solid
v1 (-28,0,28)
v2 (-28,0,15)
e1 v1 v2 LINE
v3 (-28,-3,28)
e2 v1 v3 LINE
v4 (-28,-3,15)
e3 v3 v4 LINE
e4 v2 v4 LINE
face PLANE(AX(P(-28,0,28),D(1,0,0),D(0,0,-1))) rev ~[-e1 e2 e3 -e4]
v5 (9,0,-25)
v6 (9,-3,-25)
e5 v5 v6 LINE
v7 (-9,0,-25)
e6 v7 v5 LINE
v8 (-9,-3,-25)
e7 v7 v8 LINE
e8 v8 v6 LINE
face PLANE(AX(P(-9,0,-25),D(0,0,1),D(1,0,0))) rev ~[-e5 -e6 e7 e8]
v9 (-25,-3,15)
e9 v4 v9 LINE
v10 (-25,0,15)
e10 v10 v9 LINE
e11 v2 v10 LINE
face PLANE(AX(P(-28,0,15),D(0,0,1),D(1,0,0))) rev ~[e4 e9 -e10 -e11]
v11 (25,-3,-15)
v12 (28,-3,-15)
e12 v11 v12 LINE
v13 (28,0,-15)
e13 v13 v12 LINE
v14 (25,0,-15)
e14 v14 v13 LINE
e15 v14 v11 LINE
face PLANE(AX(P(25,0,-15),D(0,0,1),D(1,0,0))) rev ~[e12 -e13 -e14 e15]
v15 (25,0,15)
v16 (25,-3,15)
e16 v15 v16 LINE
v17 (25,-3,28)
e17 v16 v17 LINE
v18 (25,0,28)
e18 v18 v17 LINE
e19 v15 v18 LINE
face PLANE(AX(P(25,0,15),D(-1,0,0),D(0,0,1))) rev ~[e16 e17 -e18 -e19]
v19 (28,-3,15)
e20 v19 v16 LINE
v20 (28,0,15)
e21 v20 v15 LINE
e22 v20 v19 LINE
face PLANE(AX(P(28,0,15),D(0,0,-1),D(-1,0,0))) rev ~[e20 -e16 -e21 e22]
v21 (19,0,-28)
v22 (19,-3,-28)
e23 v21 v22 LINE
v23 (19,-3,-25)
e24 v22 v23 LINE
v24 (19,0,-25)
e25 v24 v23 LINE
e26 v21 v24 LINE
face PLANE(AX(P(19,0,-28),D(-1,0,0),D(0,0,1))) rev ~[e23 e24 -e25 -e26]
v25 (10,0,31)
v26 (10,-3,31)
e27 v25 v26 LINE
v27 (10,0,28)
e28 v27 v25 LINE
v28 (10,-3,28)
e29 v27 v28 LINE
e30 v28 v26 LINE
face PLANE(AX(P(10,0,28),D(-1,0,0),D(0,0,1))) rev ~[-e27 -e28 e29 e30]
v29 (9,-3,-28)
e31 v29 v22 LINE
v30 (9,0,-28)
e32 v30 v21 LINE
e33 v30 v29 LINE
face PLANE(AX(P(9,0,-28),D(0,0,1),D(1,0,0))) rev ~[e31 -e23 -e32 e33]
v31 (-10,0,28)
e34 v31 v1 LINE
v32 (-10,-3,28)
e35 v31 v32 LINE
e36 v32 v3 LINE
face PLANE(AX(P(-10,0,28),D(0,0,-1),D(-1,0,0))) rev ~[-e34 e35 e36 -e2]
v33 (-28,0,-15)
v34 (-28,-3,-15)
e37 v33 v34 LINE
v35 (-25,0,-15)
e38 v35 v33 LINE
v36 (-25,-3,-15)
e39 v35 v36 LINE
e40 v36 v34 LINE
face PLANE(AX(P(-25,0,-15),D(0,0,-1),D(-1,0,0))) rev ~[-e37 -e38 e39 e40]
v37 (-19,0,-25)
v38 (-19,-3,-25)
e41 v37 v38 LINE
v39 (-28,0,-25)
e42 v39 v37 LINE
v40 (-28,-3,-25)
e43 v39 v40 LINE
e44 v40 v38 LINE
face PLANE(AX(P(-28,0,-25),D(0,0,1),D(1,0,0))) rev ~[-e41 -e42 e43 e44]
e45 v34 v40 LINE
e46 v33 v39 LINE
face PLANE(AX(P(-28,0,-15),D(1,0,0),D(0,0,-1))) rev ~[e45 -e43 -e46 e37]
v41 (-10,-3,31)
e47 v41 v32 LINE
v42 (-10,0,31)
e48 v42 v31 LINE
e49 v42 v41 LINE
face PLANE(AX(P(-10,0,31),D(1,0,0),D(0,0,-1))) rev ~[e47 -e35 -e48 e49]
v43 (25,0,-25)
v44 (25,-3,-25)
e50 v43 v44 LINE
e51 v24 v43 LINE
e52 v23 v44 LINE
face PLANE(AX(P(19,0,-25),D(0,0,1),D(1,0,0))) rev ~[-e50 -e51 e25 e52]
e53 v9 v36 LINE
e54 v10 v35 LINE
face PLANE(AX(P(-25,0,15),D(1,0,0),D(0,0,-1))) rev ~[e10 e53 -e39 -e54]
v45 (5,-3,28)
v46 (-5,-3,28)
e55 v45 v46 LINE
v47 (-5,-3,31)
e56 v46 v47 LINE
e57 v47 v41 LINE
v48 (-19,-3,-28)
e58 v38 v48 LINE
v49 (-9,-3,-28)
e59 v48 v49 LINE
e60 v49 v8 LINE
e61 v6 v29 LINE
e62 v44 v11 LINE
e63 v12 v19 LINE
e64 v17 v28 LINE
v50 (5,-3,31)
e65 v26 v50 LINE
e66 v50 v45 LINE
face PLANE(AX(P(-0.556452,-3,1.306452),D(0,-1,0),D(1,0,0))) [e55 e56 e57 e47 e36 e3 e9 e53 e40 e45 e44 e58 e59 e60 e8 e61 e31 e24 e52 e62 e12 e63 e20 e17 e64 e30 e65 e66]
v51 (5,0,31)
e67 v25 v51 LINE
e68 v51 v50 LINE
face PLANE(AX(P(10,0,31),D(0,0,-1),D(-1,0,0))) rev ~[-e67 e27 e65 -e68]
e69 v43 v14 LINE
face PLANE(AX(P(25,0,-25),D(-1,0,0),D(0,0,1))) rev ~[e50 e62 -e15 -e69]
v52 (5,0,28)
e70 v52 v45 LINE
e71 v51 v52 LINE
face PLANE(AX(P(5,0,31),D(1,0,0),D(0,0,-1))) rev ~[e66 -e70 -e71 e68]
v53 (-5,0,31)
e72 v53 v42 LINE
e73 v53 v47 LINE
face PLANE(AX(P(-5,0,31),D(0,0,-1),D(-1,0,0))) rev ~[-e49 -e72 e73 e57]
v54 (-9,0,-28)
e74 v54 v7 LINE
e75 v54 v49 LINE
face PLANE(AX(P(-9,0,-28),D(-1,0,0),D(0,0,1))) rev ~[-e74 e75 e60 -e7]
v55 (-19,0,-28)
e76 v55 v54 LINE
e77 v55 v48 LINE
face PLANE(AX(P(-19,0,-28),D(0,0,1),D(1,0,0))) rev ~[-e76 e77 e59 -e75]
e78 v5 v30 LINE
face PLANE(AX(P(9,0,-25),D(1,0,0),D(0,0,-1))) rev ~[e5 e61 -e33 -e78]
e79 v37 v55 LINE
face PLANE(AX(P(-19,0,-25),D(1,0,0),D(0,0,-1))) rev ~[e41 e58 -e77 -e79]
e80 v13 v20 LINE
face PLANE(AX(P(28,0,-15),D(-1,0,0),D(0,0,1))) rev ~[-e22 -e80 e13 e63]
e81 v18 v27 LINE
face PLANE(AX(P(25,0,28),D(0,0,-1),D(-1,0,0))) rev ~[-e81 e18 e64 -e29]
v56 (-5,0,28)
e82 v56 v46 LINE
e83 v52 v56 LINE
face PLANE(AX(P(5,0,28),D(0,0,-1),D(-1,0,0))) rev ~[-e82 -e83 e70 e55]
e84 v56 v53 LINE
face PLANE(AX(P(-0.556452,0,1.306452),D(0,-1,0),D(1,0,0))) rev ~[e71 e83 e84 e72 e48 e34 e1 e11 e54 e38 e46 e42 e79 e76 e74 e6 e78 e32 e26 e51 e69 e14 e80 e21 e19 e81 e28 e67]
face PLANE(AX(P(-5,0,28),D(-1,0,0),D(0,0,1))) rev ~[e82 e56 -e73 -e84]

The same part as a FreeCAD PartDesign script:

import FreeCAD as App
import Part
import Sketcher
Q = App.Units.Quantity

doc = App.newDocument("Part")
params = doc.addObject("Spreadsheet::Sheet", "Params")
for row, (alias, value) in enumerate([
    ("sketch1_width", "18 mm"),
    ("sketch1_width2", "3 mm"),
    ("sketch1_width3", "9 mm"),
    ("sketch1_width4", "10 mm"),
    ("sketch1_height", "13 mm"),
    ("pad1_length", "3 mm"),
], start=1):
    params.set(f"A{row}", alias)
    params.set(f"B{row}", "=" + value)
    params.setAlias(f"B{row}", alias)

body = doc.addObject("PartDesign::Body", "Body")

sketch1 = body.newObject("Sketcher::SketchObject", "Sketch")
sketch1.AttachmentSupport = (doc.getObject("XZ_Plane"), [""])
sketch1.MapMode = "FlatFace"
sketch1.addGeometry(Part.LineSegment(App.Vector(-10, 28, 0), App.Vector(-28, 28, 0)), False)
sketch1.addGeometry(Part.LineSegment(App.Vector(-28, 28, 0), App.Vector(-28, 15, 0)), False)
sketch1.addGeometry(Part.LineSegment(App.Vector(-28, 15, 0), App.Vector(-25, 15, 0)), False)
sketch1.addGeometry(Part.LineSegment(App.Vector(-25, 15, 0), App.Vector(-25, -15, 0)), False)
sketch1.addGeometry(Part.LineSegment(App.Vector(-25, -15, 0), App.Vector(-28, -15, 0)), False)
sketch1.addGeometry(Part.LineSegment(App.Vector(-28, -15, 0), App.Vector(-28, -25, 0)), False)
sketch1.addGeometry(Part.LineSegment(App.Vector(-28, -25, 0), App.Vector(-19, -25, 0)), False)
sketch1.addGeometry(Part.LineSegment(App.Vector(-19, -25, 0), App.Vector(-19, -28, 0)), False)
sketch1.addGeometry(Part.LineSegment(App.Vector(-19, -28, 0), App.Vector(-9, -28, 0)), False)
sketch1.addGeometry(Part.LineSegment(App.Vector(-9, -28, 0), App.Vector(-9, -25, 0)), False)
sketch1.addGeometry(Part.LineSegment(App.Vector(-9, -25, 0), App.Vector(9, -25, 0)), False)
sketch1.addGeometry(Part.LineSegment(App.Vector(9, -25, 0), App.Vector(9, -28, 0)), False)
sketch1.addGeometry(Part.LineSegment(App.Vector(9, -28, 0), App.Vector(19, -28, 0)), False)
sketch1.addGeometry(Part.LineSegment(App.Vector(19, -28, 0), App.Vector(19, -25, 0)), False)
sketch1.addGeometry(Part.LineSegment(App.Vector(19, -25, 0), App.Vector(25, -25, 0)), False)
sketch1.addGeometry(Part.LineSegment(App.Vector(25, -25, 0), App.Vector(25, -15, 0)), False)
sketch1.addGeometry(Part.LineSegment(App.Vector(25, -15, 0), App.Vector(28, -15, 0)), False)
sketch1.addGeometry(Part.LineSegment(App.Vector(28, -15, 0), App.Vector(28, 15, 0)), False)
sketch1.addGeometry(Part.LineSegment(App.Vector(28, 15, 0), App.Vector(25, 15, 0)), False)
sketch1.addGeometry(Part.LineSegment(App.Vector(25, 15, 0), App.Vector(25, 28, 0)), False)
sketch1.addGeometry(Part.LineSegment(App.Vector(25, 28, 0), App.Vector(10, 28, 0)), False)
sketch1.addGeometry(Part.LineSegment(App.Vector(10, 28, 0), App.Vector(10, 31, 0)), False)
sketch1.addGeometry(Part.LineSegment(App.Vector(10, 31, 0), App.Vector(5, 31, 0)), False)
sketch1.addGeometry(Part.LineSegment(App.Vector(5, 31, 0), App.Vector(5, 28, 0)), False)
sketch1.addGeometry(Part.LineSegment(App.Vector(5, 28, 0), App.Vector(-5, 28, 0)), False)
sketch1.addGeometry(Part.LineSegment(App.Vector(-5, 28, 0), App.Vector(-5, 31, 0)), False)
sketch1.addGeometry(Part.LineSegment(App.Vector(-5, 31, 0), App.Vector(-10, 31, 0)), False)
sketch1.addGeometry(Part.LineSegment(App.Vector(-10, 31, 0), App.Vector(-10, 28, 0)), False)
sketch1.addConstraint(Sketcher.Constraint("Coincident", 0, 2, 1, 1))
sketch1.addConstraint(Sketcher.Constraint("Coincident", 1, 2, 2, 1))
sketch1.addConstraint(Sketcher.Constraint("Coincident", 2, 2, 3, 1))
sketch1.addConstraint(Sketcher.Constraint("Coincident", 3, 2, 4, 1))
sketch1.addConstraint(Sketcher.Constraint("Coincident", 4, 2, 5, 1))
sketch1.addConstraint(Sketcher.Constraint("Coincident", 5, 2, 6, 1))
sketch1.addConstraint(Sketcher.Constraint("Coincident", 6, 2, 7, 1))
sketch1.addConstraint(Sketcher.Constraint("Coincident", 7, 2, 8, 1))
sketch1.addConstraint(Sketcher.Constraint("Coincident", 8, 2, 9, 1))
sketch1.addConstraint(Sketcher.Constraint("Coincident", 9, 2, 10, 1))
sketch1.addConstraint(Sketcher.Constraint("Coincident", 10, 2, 11, 1))
sketch1.addConstraint(Sketcher.Constraint("Coincident", 11, 2, 12, 1))
sketch1.addConstraint(Sketcher.Constraint("Coincident", 12, 2, 13, 1))
sketch1.addConstraint(Sketcher.Constraint("Coincident", 13, 2, 14, 1))
sketch1.addConstraint(Sketcher.Constraint("Coincident", 14, 2, 15, 1))
sketch1.addConstraint(Sketcher.Constraint("Coincident", 15, 2, 16, 1))
sketch1.addConstraint(Sketcher.Constraint("Coincident", 16, 2, 17, 1))
sketch1.addConstraint(Sketcher.Constraint("Coincident", 17, 2, 18, 1))
sketch1.addConstraint(Sketcher.Constraint("Coincident", 18, 2, 19, 1))
sketch1.addConstraint(Sketcher.Constraint("Coincident", 19, 2, 20, 1))
sketch1.addConstraint(Sketcher.Constraint("Coincident", 20, 2, 21, 1))
sketch1.addConstraint(Sketcher.Constraint("Coincident", 21, 2, 22, 1))
sketch1.addConstraint(Sketcher.Constraint("Coincident", 22, 2, 23, 1))
sketch1.addConstraint(Sketcher.Constraint("Coincident", 23, 2, 24, 1))
sketch1.addConstraint(Sketcher.Constraint("Coincident", 24, 2, 25, 1))
sketch1.addConstraint(Sketcher.Constraint("Coincident", 25, 2, 26, 1))
sketch1.addConstraint(Sketcher.Constraint("Coincident", 26, 2, 27, 1))
sketch1.addConstraint(Sketcher.Constraint("Coincident", 27, 2, 0, 1))
sketch1.addConstraint(Sketcher.Constraint("Horizontal", 0))
sketch1.addConstraint(Sketcher.Constraint("Vertical", 1))
sketch1.addConstraint(Sketcher.Constraint("Horizontal", 2))
sketch1.addConstraint(Sketcher.Constraint("Vertical", 3))
sketch1.addConstraint(Sketcher.Constraint("Horizontal", 4))
sketch1.addConstraint(Sketcher.Constraint("Vertical", 5))
sketch1.addConstraint(Sketcher.Constraint("Horizontal", 6))
sketch1.addConstraint(Sketcher.Constraint("Vertical", 7))
sketch1.addConstraint(Sketcher.Constraint("Horizontal", 8))
sketch1.addConstraint(Sketcher.Constraint("Vertical", 9))
sketch1.addConstraint(Sketcher.Constraint("Horizontal", 10))
sketch1.addConstraint(Sketcher.Constraint("Vertical", 11))
sketch1.addConstraint(Sketcher.Constraint("Horizontal", 12))
sketch1.addConstraint(Sketcher.Constraint("Vertical", 13))
sketch1.addConstraint(Sketcher.Constraint("Horizontal", 14))
sketch1.addConstraint(Sketcher.Constraint("Vertical", 15))
sketch1.addConstraint(Sketcher.Constraint("Horizontal", 16))
sketch1.addConstraint(Sketcher.Constraint("Vertical", 17))
sketch1.addConstraint(Sketcher.Constraint("Horizontal", 18))
sketch1.addConstraint(Sketcher.Constraint("Vertical", 19))
sketch1.addConstraint(Sketcher.Constraint("Horizontal", 20))
sketch1.addConstraint(Sketcher.Constraint("Vertical", 21))
sketch1.addConstraint(Sketcher.Constraint("Horizontal", 22))
sketch1.addConstraint(Sketcher.Constraint("Vertical", 23))
sketch1.addConstraint(Sketcher.Constraint("Horizontal", 24))
sketch1.addConstraint(Sketcher.Constraint("Vertical", 25))
sketch1.addConstraint(Sketcher.Constraint("Horizontal", 26))
sketch1.addConstraint(Sketcher.Constraint("Vertical", 27))
sketch1.addConstraint(Sketcher.Constraint("Symmetric", 2, 2, 15, 2, -1, 1))
sketch1.addConstraint(Sketcher.Constraint("Symmetric", 4, 2, 17, 2, -1, 1))
sketch1.addConstraint(Sketcher.Constraint("Symmetric", 8, 2, 11, 2, -2))
sketch1.addConstraint(Sketcher.Constraint("Symmetric", 6, 2, 13, 2, -2))
sketch1.addConstraint(Sketcher.Constraint("Symmetric", 1, 2, 17, 2, -2))
sketch1.addConstraint(Sketcher.Constraint("Symmetric", 22, 2, 25, 2, -2))
sketch1.addConstraint(Sketcher.Constraint("Symmetric", 20, 2, 27, 2, -2))
sketch1.addConstraint(Sketcher.Constraint("Horizontal", 6, 2, 9, 2))
sketch1.addConstraint(Sketcher.Constraint("Horizontal", 20, 2, 23, 2))
sketch1.addConstraint(Sketcher.Constraint("Vertical", 15, 2, 18, 2))
sketch1.addConstraint(Sketcher.Constraint("Equal", 0, 10))
sketch1.addConstraint(Sketcher.Constraint("Equal", 12, 24))
sketch1.addConstraint(Sketcher.Constraint("Equal", 24, 5))
sketch1.addConstraint(Sketcher.Constraint("Equal", 18, 7))
sketch1.addConstraint(Sketcher.Constraint("Equal", 13, 21))
sketch1.addConstraint(Sketcher.Constraint("DistanceX", 0, 2, 0, 1, Q("18 mm")))
sketch1.addConstraint(Sketcher.Constraint("DistanceX", 2, 1, 2, 2, Q("3 mm")))
sketch1.addConstraint(Sketcher.Constraint("DistanceX", 6, 1, 6, 2, Q("9 mm")))
sketch1.addConstraint(Sketcher.Constraint("DistanceX", 8, 1, 8, 2, Q("10 mm")))
sketch1.addConstraint(Sketcher.Constraint("DistanceY", 1, 2, 1, 1, Q("13 mm")))
sketch1.addConstraint(Sketcher.Constraint("DistanceY", 3, 2, 3, 1, Q("30 mm")))
sketch1.setExpression("Constraints[71]", "Params.sketch1_width")
sketch1.setExpression("Constraints[72]", "Params.sketch1_width2")
sketch1.setExpression("Constraints[73]", "Params.sketch1_width3")
sketch1.setExpression("Constraints[74]", "Params.sketch1_width4")
sketch1.setExpression("Constraints[75]", "Params.sketch1_height")
pad1 = body.newObject("PartDesign::Pad", "Pad")
pad1.Profile = sketch1
pad1.setExpression("Length", "Params.pad1_length")

doc.recompute()
